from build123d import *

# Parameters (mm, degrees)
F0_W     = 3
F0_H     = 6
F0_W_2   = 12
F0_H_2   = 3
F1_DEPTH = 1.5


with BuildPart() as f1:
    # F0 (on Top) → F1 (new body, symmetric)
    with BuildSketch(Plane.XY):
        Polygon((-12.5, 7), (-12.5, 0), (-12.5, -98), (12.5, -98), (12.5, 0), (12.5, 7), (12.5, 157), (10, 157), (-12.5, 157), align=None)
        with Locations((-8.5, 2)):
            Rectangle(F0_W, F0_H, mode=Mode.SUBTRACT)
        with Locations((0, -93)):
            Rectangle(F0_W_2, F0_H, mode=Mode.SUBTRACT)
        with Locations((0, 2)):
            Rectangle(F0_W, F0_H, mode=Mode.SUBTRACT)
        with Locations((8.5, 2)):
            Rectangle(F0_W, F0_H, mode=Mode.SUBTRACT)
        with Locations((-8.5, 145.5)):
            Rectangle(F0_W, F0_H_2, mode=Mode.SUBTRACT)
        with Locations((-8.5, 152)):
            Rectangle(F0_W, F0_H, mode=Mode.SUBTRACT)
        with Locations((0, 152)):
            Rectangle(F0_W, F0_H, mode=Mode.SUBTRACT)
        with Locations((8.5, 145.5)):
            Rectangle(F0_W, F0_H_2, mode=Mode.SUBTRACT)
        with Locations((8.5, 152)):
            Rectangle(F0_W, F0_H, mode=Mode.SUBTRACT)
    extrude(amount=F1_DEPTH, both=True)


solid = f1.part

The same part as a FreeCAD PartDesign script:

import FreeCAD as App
import Part
import Sketcher


def add_polygon(sketch, points):
    """Adds a closed chain of lines whose ends are joined by coincident constraints."""
    first, n = sketch.GeometryCount, len(points)
    for a, b in zip(points, points[1:] + points[:1]):
        sketch.addGeometry(Part.LineSegment(App.Vector(*a, 0), App.Vector(*b, 0)), False)
    for i in range(n):
        sketch.addConstraint(Sketcher.Constraint("Coincident", first + i, 2, first + (i + 1) % n, 1))

doc = App.newDocument("Part")
body = doc.addObject("PartDesign::Body", "Body")

# Sketch on XY plane
sketch1 = doc.addObject("Sketcher::SketchObject", "Sketch")
body.addObject(sketch1)
sketch1.AttachmentSupport = (doc.XY_Plane, [""])
sketch1.MapMode = "FlatFace"
add_polygon(sketch1, [(-12.5, -98), (12.5, -98), (12.5, 157), (-12.5, 157)])  # lines 0-3
add_polygon(sketch1, [(-7, -1), (-10, -1), (-10, 5), (-7, 5)])  # lines 4-7
add_polygon(sketch1, [(6, -96), (-6, -96), (-6, -90), (6, -90)])  # lines 8-11
add_polygon(sketch1, [(1.5, -1), (-1.5, -1), (-1.5, 5), (1.5, 5)])  # lines 12-15
add_polygon(sketch1, [(10, -1), (7, -1), (7, 5), (10, 5)])  # lines 16-19
add_polygon(sketch1, [(-7, 144), (-10, 144), (-10, 147), (-7, 147)])  # lines 20-23
add_polygon(sketch1, [(-7, 149), (-10, 149), (-10, 155), (-7, 155)])  # lines 24-27
add_polygon(sketch1, [(1.5, 149), (-1.5, 149), (-1.5, 155), (1.5, 155)])  # lines 28-31
add_polygon(sketch1, [(10, 144), (7, 144), (7, 147), (10, 147)])  # lines 32-35
add_polygon(sketch1, [(10, 149), (7, 149), (7, 155), (10, 155)])  # lines 36-39
sketch1.addConstraint([
    Sketcher.Constraint("Horizontal", 0),
    Sketcher.Constraint("Vertical", 1),
    Sketcher.Constraint("Horizontal", 2),
    Sketcher.Constraint("Vertical", 3),
    Sketcher.Constraint("Horizontal", 4),
    Sketcher.Constraint("Vertical", 5),
    Sketcher.Constraint("Horizontal", 6),
    Sketcher.Constraint("Vertical", 7),
    Sketcher.Constraint("Horizontal", 8),
    Sketcher.Constraint("Vertical", 9),
    Sketcher.Constraint("Horizontal", 10),
    Sketcher.Constraint("Vertical", 11),
    Sketcher.Constraint("Horizontal", 12),
    Sketcher.Constraint("Vertical", 13),
    Sketcher.Constraint("Horizontal", 14),
    Sketcher.Constraint("Vertical", 15),
    Sketcher.Constraint("Horizontal", 16),
    Sketcher.Constraint("Vertical", 17),
    Sketcher.Constraint("Horizontal", 18),
    Sketcher.Constraint("Vertical", 19),
    Sketcher.Constraint("Horizontal", 20),
    Sketcher.Constraint("Vertical", 21),
    Sketcher.Constraint("Horizontal", 22),
    Sketcher.Constraint("Vertical", 23),
    Sketcher.Constraint("Horizontal", 24),
    Sketcher.Constraint("Vertical", 25),
    Sketcher.Constraint("Horizontal", 26),
    Sketcher.Constraint("Vertical", 27),
    Sketcher.Constraint("Horizontal", 28),
    Sketcher.Constraint("Vertical", 29),
    Sketcher.Constraint("Horizontal", 30),
    Sketcher.Constraint("Vertical", 31),
    Sketcher.Constraint("Horizontal", 32),
    Sketcher.Constraint("Vertical", 33),
    Sketcher.Constraint("Horizontal", 34),
    Sketcher.Constraint("Vertical", 35),
    Sketcher.Constraint("Horizontal", 36),
    Sketcher.Constraint("Vertical", 37),
    Sketcher.Constraint("Horizontal", 38),
    Sketcher.Constraint("Vertical", 39),
    Sketcher.Constraint("Symmetric", 7, 2, 16, 2, -2),
    Sketcher.Constraint("Symmetric", 5, 2, 18, 2, -2),
    Sketcher.Constraint("Symmetric", 23, 2, 32, 2, -2),
    Sketcher.Constraint("Symmetric", 21, 2, 34, 2, -2),
    Sketcher.Constraint("Symmetric", 27, 2, 36, 2, -2),
    Sketcher.Constraint("Symmetric", 25, 2, 38, 2, -2),
    Sketcher.Constraint("Horizontal", 7, 2, 12, 2),
    Sketcher.Constraint("Horizontal", 6, 2, 13, 2),
    Sketcher.Constraint("Horizontal", 27, 2, 28, 2),
    Sketcher.Constraint("Horizontal", 26, 2, 29, 2),
    Sketcher.Constraint("Vertical", 5, 2, 20, 2),
    Sketcher.Constraint("Vertical", 7, 2, 22, 2),
    Sketcher.Constraint("Vertical", 21, 2, 24, 2),
    Sketcher.Constraint("Vertical", 23, 2, 26, 2),
    Sketcher.Constraint("Vertical", 13, 2, 28, 2),
    Sketcher.Constraint("Vertical", 15, 2, 30, 2),
    Sketcher.Constraint("Equal", 6, 12),
    Sketcher.Constraint("Equal", 7, 9),
    Sketcher.Constraint("Equal", 38, 21),
    Sketcher.Constraint("Equal", 19, 25),
    Sketcher.Constraint("DistanceX", 0, 1, 0, 2, 25.0),
    Sketcher.Constraint("DistanceX", 4, 2, 4, 1, 3.0),
    Sketcher.Constraint("DistanceX", 8, 2, 8, 1, 12.0),
    Sketcher.Constraint("DistanceY", 1, 1, 1, 2, 255.0),
    Sketcher.Constraint("DistanceY", 5, 1, 5, 2, 6.0),
    Sketcher.Constraint("DistanceY", 0, 2, -1, 1, 98.0),
    Sketcher.Constraint("DistanceX", 4, 2, -1, 1, 10.0),
    Sketcher.Constraint("DistanceY", 4, 2, -1, 1, 1.0),
    Sketcher.Constraint("DistanceX", 8, 2, -1, 1, 6.0),
    Sketcher.Constraint("DistanceY", 8, 2, -1, 1, 96.0),
    Sketcher.Constraint("DistanceY", -1, 1, 20, 2, 144.0),
    Sketcher.Constraint("DistanceY", -1, 1, 24, 2, 149.0),
    Sketcher.Constraint("DistanceX", 30, 2, 1, 2, 11.0),
    Sketcher.Constraint("DistanceX", -1, 1, 0, 2, 12.5),
])
pad1 = doc.addObject("PartDesign::Pad", "Pad")
body.addObject(pad1)
pad1.Profile = sketch1
pad1.Length = 3
pad1.Midplane = True

doc.recompute()
